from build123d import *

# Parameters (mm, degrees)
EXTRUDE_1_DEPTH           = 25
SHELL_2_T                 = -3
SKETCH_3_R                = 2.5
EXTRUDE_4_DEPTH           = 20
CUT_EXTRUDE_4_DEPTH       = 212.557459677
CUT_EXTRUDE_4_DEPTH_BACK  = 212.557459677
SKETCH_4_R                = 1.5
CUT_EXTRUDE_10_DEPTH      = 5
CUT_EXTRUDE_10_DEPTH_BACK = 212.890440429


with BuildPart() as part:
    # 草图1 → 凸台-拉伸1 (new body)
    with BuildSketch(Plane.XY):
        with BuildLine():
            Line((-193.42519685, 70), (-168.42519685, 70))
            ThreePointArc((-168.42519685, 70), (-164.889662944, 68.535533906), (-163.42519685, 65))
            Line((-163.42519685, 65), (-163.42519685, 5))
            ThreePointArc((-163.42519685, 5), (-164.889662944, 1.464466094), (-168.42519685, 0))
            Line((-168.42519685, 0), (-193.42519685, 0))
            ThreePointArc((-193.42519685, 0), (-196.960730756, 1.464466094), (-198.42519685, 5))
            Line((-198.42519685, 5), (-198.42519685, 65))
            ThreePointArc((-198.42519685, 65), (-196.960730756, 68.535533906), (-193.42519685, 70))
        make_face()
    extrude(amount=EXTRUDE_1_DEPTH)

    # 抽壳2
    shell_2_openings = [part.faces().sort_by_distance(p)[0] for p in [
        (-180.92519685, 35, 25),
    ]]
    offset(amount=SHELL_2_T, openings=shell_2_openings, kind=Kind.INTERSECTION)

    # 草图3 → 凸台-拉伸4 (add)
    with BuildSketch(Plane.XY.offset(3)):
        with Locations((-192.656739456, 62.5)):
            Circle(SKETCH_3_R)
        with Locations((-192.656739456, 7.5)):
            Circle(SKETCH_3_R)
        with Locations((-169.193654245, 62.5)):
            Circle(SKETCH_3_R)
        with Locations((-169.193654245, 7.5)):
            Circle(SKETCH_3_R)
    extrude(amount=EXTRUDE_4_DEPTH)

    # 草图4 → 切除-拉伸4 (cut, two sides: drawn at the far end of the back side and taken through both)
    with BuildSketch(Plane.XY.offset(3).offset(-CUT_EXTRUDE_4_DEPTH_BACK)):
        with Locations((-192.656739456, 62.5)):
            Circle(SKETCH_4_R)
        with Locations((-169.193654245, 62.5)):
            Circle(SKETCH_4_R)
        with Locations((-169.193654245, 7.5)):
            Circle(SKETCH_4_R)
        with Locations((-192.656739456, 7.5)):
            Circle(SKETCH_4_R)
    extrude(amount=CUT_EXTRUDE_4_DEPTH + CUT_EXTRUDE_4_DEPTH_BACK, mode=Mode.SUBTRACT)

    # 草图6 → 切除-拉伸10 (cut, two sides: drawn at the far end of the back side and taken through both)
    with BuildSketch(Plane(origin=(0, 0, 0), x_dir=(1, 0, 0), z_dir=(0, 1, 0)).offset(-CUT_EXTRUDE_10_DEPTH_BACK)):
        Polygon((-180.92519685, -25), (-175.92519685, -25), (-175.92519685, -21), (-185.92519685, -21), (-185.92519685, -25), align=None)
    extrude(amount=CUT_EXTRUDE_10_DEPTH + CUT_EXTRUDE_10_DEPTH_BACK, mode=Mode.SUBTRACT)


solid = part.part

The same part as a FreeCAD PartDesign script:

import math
import FreeCAD as App
import Part
import Sketcher

V = App.Vector


def faces_at(feature, points):
    """Names of the faces that lie closest to the given points."""
    faces = feature.Shape.Faces
    near = lambda p: min(range(len(faces)), key=lambda i: faces[i].distToShape(Part.Vertex(*p))[0])
    return sorted({f"Face{near(p) + 1}" for p in points})

doc = App.newDocument("Part")
body = doc.addObject("PartDesign::Body", "Body")

# Sketch on XY plane
sketch1 = body.newObject("Sketcher::SketchObject", "Sketch")
sketch1.AttachmentSupport = (doc.getObject("XY_Plane"), [""])
sketch1.MapMode = "FlatFace"
sketch1.addGeometry(Part.LineSegment(V(-168, 70, 0), V(-193, 70, 0)), False)
sketch1.addGeometry(Part.ArcOfCircle(Part.Circle(V(-193, 65, 0), V(0, 0, 1), 5), math.radians(90), math.radians(180)), False)
sketch1.addGeometry(Part.LineSegment(V(-198, 65, 0), V(-198, 5, 0)), False)
sketch1.addGeometry(Part.ArcOfCircle(Part.Circle(V(-193, 5, 0), V(0, 0, 1), 5), math.radians(180), math.radians(270)), False)
sketch1.addGeometry(Part.LineSegment(V(-193, 0, 0), V(-168, 0, 0)), False)
sketch1.addGeometry(Part.ArcOfCircle(Part.Circle(V(-168, 5, 0), V(0, 0, 1), 5), math.radians(-90), math.radians(0)), False)
sketch1.addGeometry(Part.LineSegment(V(-163, 5, 0), V(-163, 65, 0)), False)
sketch1.addGeometry(Part.ArcOfCircle(Part.Circle(V(-168, 65, 0), V(0, 0, 1), 5), math.radians(0), math.radians(90)), False)
sketch1.addConstraint(Sketcher.Constraint("Tangent", 0, 2, 1, 1))
sketch1.addConstraint(Sketcher.Constraint("Tangent", 1, 2, 2, 1))
sketch1.addConstraint(Sketcher.Constraint("Tangent", 2, 2, 3, 1))
sketch1.addConstraint(Sketcher.Constraint("Tangent", 3, 2, 4, 1))
sketch1.addConstraint(Sketcher.Constraint("Tangent", 4, 2, 5, 1))
sketch1.addConstraint(Sketcher.Constraint("Tangent", 5, 2, 6, 1))
sketch1.addConstraint(Sketcher.Constraint("Tangent", 6, 2, 7, 1))
sketch1.addConstraint(Sketcher.Constraint("Tangent", 7, 2, 0, 1))
sketch1.addConstraint(Sketcher.Constraint("Horizontal", 0))
sketch1.addConstraint(Sketcher.Constraint("Vertical", 2))
sketch1.addConstraint(Sketcher.Constraint("Horizontal", 4))
sketch1.addConstraint(Sketcher.Constraint("Vertical", 6))
sketch1.addConstraint(Sketcher.Constraint("Equal", 1, 3))
sketch1.addConstraint(Sketcher.Constraint("Equal", 3, 5))
sketch1.addConstraint(Sketcher.Constraint("Equal", 5, 7))
sketch1.addConstraint(Sketcher.Constraint("PointOnObject", 3, 2, -1))
sketch1.addConstraint(Sketcher.Constraint("Radius", 1, 5.0))
sketch1.addConstraint(Sketcher.Constraint("DistanceX", 0, 2, 0, 1, 25.0))
sketch1.addConstraint(Sketcher.Constraint("DistanceY", 2, 2, 2, 1, 60.0))
sketch1.addConstraint(Sketcher.Constraint("DistanceX", 1, 3, -1, 1, 193.425197))
pad1 = body.newObject("PartDesign::Pad", "Pad")
pad1.Profile = sketch1
pad1.Length = 25
doc.recompute()

thickness = body.newObject("PartDesign::Thickness", "Thickness")
thickness.Base = (pad1, faces_at(pad1, [(-180.925, 35, 25)]))
thickness.Value = 3
thickness.Reversed = True
thickness.Join = "Intersection"

# Sketch on XY plane
sketch2 = body.newObject("Sketcher::SketchObject", "Sketch001")
sketch2.AttachmentSupport = (doc.getObject("XY_Plane"), [""])
sketch2.MapMode = "FlatFace"
sketch2.AttachmentOffset = App.Placement(V(0, 0, 3), App.Rotation())
sketch2.addGeometry(Part.Circle(V(-192.7, 62.5, 0), V(0, 0, 1), 2.5), False)
sketch2.addGeometry(Part.Circle(V(-192.7, 7.5, 0), V(0, 0, 1), 2.5), False)
sketch2.addGeometry(Part.Circle(V(-169.2, 62.5, 0), V(0, 0, 1), 2.5), False)
sketch2.addGeometry(Part.Circle(V(-169.2, 7.5, 0), V(0, 0, 1), 2.5), False)
sketch2.addConstraint(Sketcher.Constraint("Equal", 0, 1))
sketch2.addConstraint(Sketcher.Constraint("Equal", 1, 2))
sketch2.addConstraint(Sketcher.Constraint("Equal", 2, 3))
sketch2.addConstraint(Sketcher.Constraint("Horizontal", 0, 3, 2, 3))
sketch2.addConstraint(Sketcher.Constraint("Horizontal", 1, 3, 3, 3))
sketch2.addConstraint(Sketcher.Constraint("Vertical", 0, 3, 1, 3))
sketch2.addConstraint(Sketcher.Constraint("Vertical", 2, 3, 3, 3))
sketch2.addConstraint(Sketcher.Constraint("Diameter", 0, 5.0))
sketch2.addConstraint(Sketcher.Constraint("DistanceY", 1, 3, 0, 3, 55.0))
sketch2.addConstraint(Sketcher.Constraint("DistanceY", -1, 1, 0, 3, 62.5))
sketch2.addConstraint(Sketcher.Constraint("DistanceX", 0, 3, -1, 1, 192.656739))
sketch2.addConstraint(Sketcher.Constraint("DistanceX", 2, 3, -1, 1, 169.193654))
pad2 = body.newObject("PartDesign::Pad", "Pad001")
pad2.Profile = sketch2
pad2.Length = 20

# Sketch on XY plane
sketch3 = body.newObject("Sketcher::SketchObject", "Sketch002")
sketch3.AttachmentSupport = (doc.getObject("XY_Plane"), [""])
sketch3.MapMode = "FlatFace"
sketch3.AttachmentOffset = App.Placement(V(0, 0, 3), App.Rotation())
sketch3.addGeometry(Part.Circle(V(-192.7, 62.5, 0), V(0, 0, 1), 1.5), False)
sketch3.addGeometry(Part.Circle(V(-169.2, 62.5, 0), V(0, 0, 1), 1.5), False)
sketch3.addGeometry(Part.Circle(V(-169.2, 7.5, 0), V(0, 0, 1), 1.5), False)
sketch3.addGeometry(Part.Circle(V(-192.7, 7.5, 0), V(0, 0, 1), 1.5), False)
sketch3.addConstraint(Sketcher.Constraint("Equal", 0, 1))
sketch3.addConstraint(Sketcher.Constraint("Equal", 1, 2))
sketch3.addConstraint(Sketcher.Constraint("Equal", 2, 3))
sketch3.addConstraint(Sketcher.Constraint("Horizontal", 0, 3, 1, 3))
sketch3.addConstraint(Sketcher.Constraint("Horizontal", 2, 3, 3, 3))
sketch3.addConstraint(Sketcher.Constraint("Vertical", 1, 3, 2, 3))
sketch3.addConstraint(Sketcher.Constraint("Vertical", 0, 3, 3, 3))
sketch3.addConstraint(Sketcher.Constraint("Diameter", 0, 3.0))
sketch3.addConstraint(Sketcher.Constraint("DistanceY", 2, 3, 1, 3, 55.0))
sketch3.addConstraint(Sketcher.Constraint("DistanceY", -1, 1, 0, 3, 62.5))
sketch3.addConstraint(Sketcher.Constraint("DistanceX", 0, 3, -1, 1, 192.656739))
sketch3.addConstraint(Sketcher.Constraint("DistanceX", 1, 3, -1, 1, 169.193654))
pocket1 = body.newObject("PartDesign::Pocket", "Pocket")
pocket1.Profile = sketch3
pocket1.Type = "ThroughAll"
pocket1.Midplane = True

# Sketch on XZ plane
sketch4 = body.newObject("Sketcher::SketchObject", "Sketch003")
sketch4.AttachmentSupport = (doc.getObject("XZ_Plane"), [""])
sketch4.MapMode = "FlatFace"
sketch4.addGeometry(Part.LineSegment(V(-175.9, 25, 0), V(-175.9, 21, 0)), False)
sketch4.addGeometry(Part.LineSegment(V(-175.9, 21, 0), V(-185.9, 21, 0)), False)
sketch4.addGeometry(Part.LineSegment(V(-185.9, 21, 0), V(-185.9, 25, 0)), False)
sketch4.addGeometry(Part.LineSegment(V(-185.9, 25, 0), V(-175.9, 25, 0)), False)
sketch4.addConstraint(Sketcher.Constraint("Coincident", 0, 2, 1, 1))
sketch4.addConstraint(Sketcher.Constraint("Coincident", 1, 2, 2, 1))
sketch4.addConstraint(Sketcher.Constraint("Coincident", 2, 2, 3, 1))
sketch4.addConstraint(Sketcher.Constraint("Coincident", 3, 2, 0, 1))
sketch4.addConstraint(Sketcher.Constraint("Vertical", 0))
sketch4.addConstraint(Sketcher.Constraint("Horizontal", 1))
sketch4.addConstraint(Sketcher.Constraint("Vertical", 2))
sketch4.addConstraint(Sketcher.Constraint("Horizontal", 3))
sketch4.addConstraint(Sketcher.Constraint("DistanceX", 1, 2, 1, 1, 10.0))
sketch4.addConstraint(Sketcher.Constraint("DistanceY", 0, 2, 0, 1, 4.0))
sketch4.addConstraint(Sketcher.Constraint("DistanceY", -1, 1, 0, 2, 21.0))
sketch4.addConstraint(Sketcher.Constraint("DistanceX", 0, 2, -1, 1, 175.925197))
pocket2 = body.newObject("PartDesign::Pocket", "Pocket001")
pocket2.Profile = sketch4
pocket2.Type = "TwoLengths"
pocket2.Length = 5
pocket2.Length2 = 212.89044

doc.recompute()
